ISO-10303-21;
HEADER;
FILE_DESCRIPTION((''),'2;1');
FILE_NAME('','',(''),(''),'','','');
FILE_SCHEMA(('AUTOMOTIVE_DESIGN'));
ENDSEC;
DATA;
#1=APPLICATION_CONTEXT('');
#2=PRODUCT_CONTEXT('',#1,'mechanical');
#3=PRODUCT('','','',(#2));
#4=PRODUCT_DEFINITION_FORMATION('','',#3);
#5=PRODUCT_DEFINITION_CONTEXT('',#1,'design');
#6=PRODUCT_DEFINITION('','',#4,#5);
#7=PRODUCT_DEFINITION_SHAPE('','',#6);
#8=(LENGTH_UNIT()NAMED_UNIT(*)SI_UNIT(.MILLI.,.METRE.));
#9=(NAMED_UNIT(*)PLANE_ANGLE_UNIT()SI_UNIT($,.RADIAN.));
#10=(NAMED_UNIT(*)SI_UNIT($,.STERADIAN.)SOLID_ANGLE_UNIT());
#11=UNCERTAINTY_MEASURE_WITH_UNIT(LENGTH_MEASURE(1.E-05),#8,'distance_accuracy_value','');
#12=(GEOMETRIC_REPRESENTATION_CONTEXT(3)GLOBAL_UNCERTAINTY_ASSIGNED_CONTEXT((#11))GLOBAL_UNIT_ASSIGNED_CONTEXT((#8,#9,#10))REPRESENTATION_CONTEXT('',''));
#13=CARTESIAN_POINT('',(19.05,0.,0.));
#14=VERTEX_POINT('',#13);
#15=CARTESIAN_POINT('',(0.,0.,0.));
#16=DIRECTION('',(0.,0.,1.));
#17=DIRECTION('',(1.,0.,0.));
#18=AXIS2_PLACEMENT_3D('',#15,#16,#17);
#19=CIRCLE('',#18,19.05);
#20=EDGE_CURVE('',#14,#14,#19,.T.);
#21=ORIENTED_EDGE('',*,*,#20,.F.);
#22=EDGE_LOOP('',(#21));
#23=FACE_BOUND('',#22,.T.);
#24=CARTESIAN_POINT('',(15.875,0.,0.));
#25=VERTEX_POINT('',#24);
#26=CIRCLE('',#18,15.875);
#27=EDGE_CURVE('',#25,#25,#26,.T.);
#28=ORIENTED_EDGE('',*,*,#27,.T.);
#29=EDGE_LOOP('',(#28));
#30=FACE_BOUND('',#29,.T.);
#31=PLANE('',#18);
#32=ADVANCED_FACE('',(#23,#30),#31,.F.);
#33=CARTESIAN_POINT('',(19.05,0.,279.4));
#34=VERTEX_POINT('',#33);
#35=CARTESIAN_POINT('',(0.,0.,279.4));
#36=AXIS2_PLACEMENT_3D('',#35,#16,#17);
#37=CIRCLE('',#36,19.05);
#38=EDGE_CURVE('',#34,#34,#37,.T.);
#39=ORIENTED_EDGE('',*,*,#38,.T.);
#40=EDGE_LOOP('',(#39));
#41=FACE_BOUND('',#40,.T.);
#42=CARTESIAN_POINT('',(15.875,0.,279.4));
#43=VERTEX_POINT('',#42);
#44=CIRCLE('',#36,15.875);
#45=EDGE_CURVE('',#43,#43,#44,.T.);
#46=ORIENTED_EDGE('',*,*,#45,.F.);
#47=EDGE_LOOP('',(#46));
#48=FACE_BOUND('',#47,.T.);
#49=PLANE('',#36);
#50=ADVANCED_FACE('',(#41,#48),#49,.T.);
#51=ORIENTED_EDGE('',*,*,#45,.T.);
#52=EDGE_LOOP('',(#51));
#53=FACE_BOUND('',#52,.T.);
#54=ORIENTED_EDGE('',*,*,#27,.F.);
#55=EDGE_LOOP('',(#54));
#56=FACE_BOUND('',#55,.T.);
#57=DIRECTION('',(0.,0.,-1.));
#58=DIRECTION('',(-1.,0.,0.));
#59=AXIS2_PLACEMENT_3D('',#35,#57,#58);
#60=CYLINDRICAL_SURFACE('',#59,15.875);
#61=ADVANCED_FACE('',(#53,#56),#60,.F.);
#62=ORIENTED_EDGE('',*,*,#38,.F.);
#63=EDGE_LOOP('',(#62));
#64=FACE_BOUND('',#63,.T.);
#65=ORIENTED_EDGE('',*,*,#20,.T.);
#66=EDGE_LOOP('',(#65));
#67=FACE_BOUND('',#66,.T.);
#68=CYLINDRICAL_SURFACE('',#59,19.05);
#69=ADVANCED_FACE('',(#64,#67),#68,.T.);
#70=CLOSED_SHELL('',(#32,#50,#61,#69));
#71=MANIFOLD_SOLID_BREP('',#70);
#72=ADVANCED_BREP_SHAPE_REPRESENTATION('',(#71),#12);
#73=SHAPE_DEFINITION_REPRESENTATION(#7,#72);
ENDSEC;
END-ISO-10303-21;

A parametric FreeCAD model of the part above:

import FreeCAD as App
import Part
import Sketcher
Q = App.Units.Quantity

doc = App.newDocument("Part")
params = doc.addObject("Spreadsheet::Sheet", "Params")
for row, (alias, value) in enumerate([
    ("sketch1_diameter", "1.5 in"),
    ("sketch1_diameter2", "1.25 in"),
    ("pad1_length", "11 in"),
], start=1):
    params.set(f"A{row}", alias)
    params.set(f"B{row}", "=" + value)
    params.setAlias(f"B{row}", alias)

body = doc.addObject("PartDesign::Body", "Body")

# Sketch on XY plane
sketch1 = body.newObject("Sketcher::SketchObject", "Sketch")
sketch1.AttachmentSupport = (doc.getObject("XY_Plane"), [""])
sketch1.MapMode = "FlatFace"
sketch1.addGeometry(Part.Circle(App.Vector(0, 0, 0), App.Vector(0, 0, 1), 19), False)
sketch1.addGeometry(Part.Circle(App.Vector(0, 0, 0), App.Vector(0, 0, 1), 16), False)
sketch1.addConstraint(Sketcher.Constraint("Coincident", 0, 3, -1, 1))
sketch1.addConstraint(Sketcher.Constraint("Coincident", 1, 3, -1, 1))
sketch1.addConstraint(Sketcher.Constraint("Diameter", 0, Q("1.5 in")))
sketch1.addConstraint(Sketcher.Constraint("Diameter", 1, Q("1.25 in")))
sketch1.setExpression("Constraints[2]", "Params.sketch1_diameter")
sketch1.setExpression("Constraints[3]", "Params.sketch1_diameter2")
pad1 = body.newObject("PartDesign::Pad", "Pad")
pad1.Profile = sketch1
pad1.setExpression("Length", "Params.pad1_length")

doc.recompute()
